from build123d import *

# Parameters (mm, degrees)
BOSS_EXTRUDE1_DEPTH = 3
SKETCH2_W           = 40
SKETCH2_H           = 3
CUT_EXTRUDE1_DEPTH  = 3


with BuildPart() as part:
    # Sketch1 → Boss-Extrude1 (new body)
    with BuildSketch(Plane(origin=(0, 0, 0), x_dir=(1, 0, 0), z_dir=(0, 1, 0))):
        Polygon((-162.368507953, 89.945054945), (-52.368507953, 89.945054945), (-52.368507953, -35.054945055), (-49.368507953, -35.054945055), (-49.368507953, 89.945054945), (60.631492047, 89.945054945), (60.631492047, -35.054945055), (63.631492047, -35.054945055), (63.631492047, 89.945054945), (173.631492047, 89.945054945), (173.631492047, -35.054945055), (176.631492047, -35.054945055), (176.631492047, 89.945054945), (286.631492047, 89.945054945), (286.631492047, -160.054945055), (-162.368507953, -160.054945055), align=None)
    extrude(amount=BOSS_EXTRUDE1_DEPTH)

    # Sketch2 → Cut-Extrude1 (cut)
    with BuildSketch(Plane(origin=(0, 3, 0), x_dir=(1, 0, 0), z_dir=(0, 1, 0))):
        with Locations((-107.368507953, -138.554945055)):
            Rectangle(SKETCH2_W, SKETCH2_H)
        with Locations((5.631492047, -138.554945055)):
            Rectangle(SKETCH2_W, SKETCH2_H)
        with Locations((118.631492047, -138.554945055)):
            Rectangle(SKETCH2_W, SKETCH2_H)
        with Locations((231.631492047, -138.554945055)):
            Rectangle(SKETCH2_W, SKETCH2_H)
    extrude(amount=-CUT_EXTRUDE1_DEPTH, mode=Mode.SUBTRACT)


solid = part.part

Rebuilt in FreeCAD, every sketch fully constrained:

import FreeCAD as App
import Part
import Sketcher

V = App.Vector

doc = App.newDocument("Part")
params = doc.addObject("Spreadsheet::Sheet", "Params")
for row, (alias, value) in enumerate([
    ("sketch1_width", "110 mm"),
    ("sketch1_width2", "449 mm"),
    ("sketch1_height", "250 mm"),
    ("sketch1_height2", "125 mm"),
    ("pad1_length", "3 mm"),
    ("sketch2_width", "40 mm"),
    ("sketch2_height", "3 mm"),
    ("pocket1_length", "3 mm"),
], start=1):
    params.set(f"A{row}", alias)
    params.set(f"B{row}", "=" + value)
    params.setAlias(f"B{row}", alias)

body = doc.addObject("PartDesign::Body", "Body")

# Sketch on XZ plane
sketch1 = body.newObject("Sketcher::SketchObject", "Sketch")
sketch1.AttachmentSupport = (doc.getObject("XZ_Plane"), [""])
sketch1.MapMode = "FlatFace"
sketch1.addGeometry([
    Part.LineSegment(V(-52.4, -89.9, 0), V(-162.4, -89.9, 0)),  # 0
    Part.LineSegment(V(-162.4, -89.9, 0), V(-162.4, 160.1, 0)),  # 1
    Part.LineSegment(V(-162.4, 160.1, 0), V(286.6, 160.1, 0)),  # 2
    Part.LineSegment(V(286.6, 160.1, 0), V(286.6, -89.9, 0)),  # 3
    Part.LineSegment(V(286.6, -89.9, 0), V(176.6, -89.9, 0)),  # 4
    Part.LineSegment(V(176.6, -89.9, 0), V(176.6, 35.1, 0)),  # 5
    Part.LineSegment(V(176.6, 35.1, 0), V(173.6, 35.1, 0)),  # 6
    Part.LineSegment(V(173.6, 35.1, 0), V(173.6, -89.9, 0)),  # 7
    Part.LineSegment(V(173.6, -89.9, 0), V(63.6, -89.9, 0)),  # 8
    Part.LineSegment(V(63.6, -89.9, 0), V(63.6, 35.1, 0)),  # 9
    Part.LineSegment(V(63.6, 35.1, 0), V(60.6, 35.1, 0)),  # 10
    Part.LineSegment(V(60.6, 35.1, 0), V(60.6, -89.9, 0)),  # 11
    Part.LineSegment(V(60.6, -89.9, 0), V(-49.4, -89.9, 0)),  # 12
    Part.LineSegment(V(-49.4, -89.9, 0), V(-49.4, 35.1, 0)),  # 13
    Part.LineSegment(V(-49.4, 35.1, 0), V(-52.4, 35.1, 0)),  # 14
    Part.LineSegment(V(-52.4, 35.1, 0), V(-52.4, -89.9, 0)),  # 15
], False)
sketch1.addConstraint([
    Sketcher.Constraint("Coincident", 0, 2, 1, 1),
    Sketcher.Constraint("Coincident", 1, 2, 2, 1),
    Sketcher.Constraint("Coincident", 2, 2, 3, 1),
    Sketcher.Constraint("Coincident", 3, 2, 4, 1),
    Sketcher.Constraint("Coincident", 4, 2, 5, 1),
    Sketcher.Constraint("Coincident", 5, 2, 6, 1),
    Sketcher.Constraint("Coincident", 6, 2, 7, 1),
    Sketcher.Constraint("Coincident", 7, 2, 8, 1),
    Sketcher.Constraint("Coincident", 8, 2, 9, 1),
    Sketcher.Constraint("Coincident", 9, 2, 10, 1),
    Sketcher.Constraint("Coincident", 10, 2, 11, 1),
    Sketcher.Constraint("Coincident", 11, 2, 12, 1),
    Sketcher.Constraint("Coincident", 12, 2, 13, 1),
    Sketcher.Constraint("Coincident", 13, 2, 14, 1),
    Sketcher.Constraint("Coincident", 14, 2, 15, 1),
    Sketcher.Constraint("Coincident", 15, 2, 0, 1),
    Sketcher.Constraint("Horizontal", 0),
    Sketcher.Constraint("Vertical", 1),
    Sketcher.Constraint("Horizontal", 2),
    Sketcher.Constraint("Vertical", 3),
    Sketcher.Constraint("Horizontal", 4),
    Sketcher.Constraint("Vertical", 5),
    Sketcher.Constraint("Horizontal", 6),
    Sketcher.Constraint("Vertical", 7),
    Sketcher.Constraint("Horizontal", 8),
    Sketcher.Constraint("Vertical", 9),
    Sketcher.Constraint("Horizontal", 10),
    Sketcher.Constraint("Vertical", 11),
    Sketcher.Constraint("Horizontal", 12),
    Sketcher.Constraint("Vertical", 13),
    Sketcher.Constraint("Horizontal", 14),
    Sketcher.Constraint("Vertical", 15),
    Sketcher.Constraint("Horizontal", 0, 2, 3, 2),
    Sketcher.Constraint("Horizontal", 4, 2, 7, 2),
    Sketcher.Constraint("Horizontal", 6, 2, 9, 2),
    Sketcher.Constraint("Horizontal", 8, 2, 11, 2),
    Sketcher.Constraint("Horizontal", 10, 2, 13, 2),
    Sketcher.Constraint("Equal", 0, 4),
    Sketcher.Constraint("Equal", 4, 8),
    Sketcher.Constraint("Equal", 6, 10),
    Sketcher.Constraint("Equal", 8, 12),
    Sketcher.Constraint("Equal", 10, 14),
    Sketcher.Constraint("DistanceX", 0, 2, 0, 1, 110.0),
    Sketcher.Constraint("DistanceX", 2, 1, 2, 2, 449.0),
    Sketcher.Constraint("DistanceY", 1, 1, 1, 2, 250.0),
    Sketcher.Constraint("DistanceY", 5, 1, 5, 2, 125.0),
    Sketcher.Constraint("DistanceX", 0, 2, -1, 1, 162.368508),
    Sketcher.Constraint("DistanceY", 0, 2, -1, 1, 89.945055),
])
sketch1.setExpression("Constraints[42]", "Params.sketch1_width")
sketch1.setExpression("Constraints[43]", "Params.sketch1_width2")
sketch1.setExpression("Constraints[44]", "Params.sketch1_height")
sketch1.setExpression("Constraints[45]", "Params.sketch1_height2")
pad1 = body.newObject("PartDesign::Pad", "Pad")
pad1.Profile = sketch1
pad1.setExpression("Length", "Params.pad1_length")
pad1.Reversed = True

# Sketch on XZ plane
sketch2 = body.newObject("Sketcher::SketchObject", "Sketch001")
sketch2.AttachmentSupport = (doc.getObject("XZ_Plane"), [""])
sketch2.MapMode = "FlatFace"
sketch2.AttachmentOffset = App.Placement(V(0, 0, -3), App.Rotation())
sketch2.addGeometry([
    Part.LineSegment(V(-127.4, 137.1, 0), V(-127.4, 140.1, 0)),  # 0
    Part.LineSegment(V(-127.4, 140.1, 0), V(-87.4, 140.1, 0)),  # 1
    Part.LineSegment(V(-87.4, 140.1, 0), V(-87.4, 137.1, 0)),  # 2
    Part.LineSegment(V(-87.4, 137.1, 0), V(-127.4, 137.1, 0)),  # 3
    Part.LineSegment(V(-14.4, 137.1, 0), V(-14.4, 140.1, 0)),  # 4
    Part.LineSegment(V(-14.4, 140.1, 0), V(25.6, 140.1, 0)),  # 5
    Part.LineSegment(V(25.6, 140.1, 0), V(25.6, 137.1, 0)),  # 6
    Part.LineSegment(V(25.6, 137.1, 0), V(-14.4, 137.1, 0)),  # 7
    Part.LineSegment(V(98.6, 137.1, 0), V(98.6, 140.1, 0)),  # 8
    Part.LineSegment(V(98.6, 140.1, 0), V(138.6, 140.1, 0)),  # 9
    Part.LineSegment(V(138.6, 140.1, 0), V(138.6, 137.1, 0)),  # 10
    Part.LineSegment(V(138.6, 137.1, 0), V(98.6, 137.1, 0)),  # 11
    Part.LineSegment(V(211.6, 137.1, 0), V(211.6, 140.1, 0)),  # 12
    Part.LineSegment(V(211.6, 140.1, 0), V(251.6, 140.1, 0)),  # 13
    Part.LineSegment(V(251.6, 140.1, 0), V(251.6, 137.1, 0)),  # 14
    Part.LineSegment(V(251.6, 137.1, 0), V(211.6, 137.1, 0)),  # 15
], False)
sketch2.addConstraint([
    Sketcher.Constraint("Coincident", 0, 2, 1, 1),
    Sketcher.Constraint("Coincident", 1, 2, 2, 1),
    Sketcher.Constraint("Coincident", 2, 2, 3, 1),
    Sketcher.Constraint("Coincident", 3, 2, 0, 1),
    Sketcher.Constraint("Coincident", 4, 2, 5, 1),
    Sketcher.Constraint("Coincident", 5, 2, 6, 1),
    Sketcher.Constraint("Coincident", 6, 2, 7, 1),
    Sketcher.Constraint("Coincident", 7, 2, 4, 1),
    Sketcher.Constraint("Coincident", 8, 2, 9, 1),
    Sketcher.Constraint("Coincident", 9, 2, 10, 1),
    Sketcher.Constraint("Coincident", 10, 2, 11, 1),
    Sketcher.Constraint("Coincident", 11, 2, 8, 1),
    Sketcher.Constraint("Coincident", 12, 2, 13, 1),
    Sketcher.Constraint("Coincident", 13, 2, 14, 1),
    Sketcher.Constraint("Coincident", 14, 2, 15, 1),
    Sketcher.Constraint("Coincident", 15, 2, 12, 1),
    Sketcher.Constraint("Vertical", 0),
    Sketcher.Constraint("Horizontal", 1),
    Sketcher.Constraint("Vertical", 2),
    Sketcher.Constraint("Horizontal", 3),
    Sketcher.Constraint("Vertical", 4),
    Sketcher.Constraint("Horizontal", 5),
    Sketcher.Constraint("Vertical", 6),
    Sketcher.Constraint("Horizontal", 7),
    Sketcher.Constraint("Vertical", 8),
    Sketcher.Constraint("Horizontal", 9),
    Sketcher.Constraint("Vertical", 10),
    Sketcher.Constraint("Horizontal", 11),
    Sketcher.Constraint("Vertical", 12),
    Sketcher.Constraint("Horizontal", 13),
    Sketcher.Constraint("Vertical", 14),
    Sketcher.Constraint("Horizontal", 15),
    Sketcher.Constraint("Horizontal", 1, 2, 4, 2),
    Sketcher.Constraint("Horizontal", 3, 2, 6, 2),
    Sketcher.Constraint("Horizontal", 5, 2, 8, 2),
    Sketcher.Constraint("Horizontal", 7, 2, 10, 2),
    Sketcher.Constraint("Horizontal", 9, 2, 12, 2),
    Sketcher.Constraint("Horizontal", 11, 2, 14, 2),
    Sketcher.Constraint("Equal", 3, 5),
    Sketcher.Constraint("Equal", 7, 9),
    Sketcher.Constraint("Equal", 11, 13),
    Sketcher.Constraint("DistanceX", 1, 1, 1, 2, 40.0),
    Sketcher.Constraint("DistanceY", 0, 1, 0, 2, 3.0),
    Sketcher.Constraint("DistanceX", 1, 2, 4, 2, 73.0),
    Sketcher.Constraint("DistanceX", 5, 2, 8, 2, 73.0),
    Sketcher.Constraint("DistanceX", 9, 2, 12, 2, 73.0),
    Sketcher.Constraint("DistanceX", 0, 2, -1, 1, 127.368508),
    Sketcher.Constraint("DistanceY", -1, 1, 0, 2, 140.054945),
])
sketch2.setExpression("Constraints[41]", "Params.sketch2_width")
sketch2.setExpression("Constraints[42]", "Params.sketch2_height")
pocket1 = body.newObject("PartDesign::Pocket", "Pocket")
pocket1.Profile = sketch2
pocket1.setExpression("Length", "Params.pocket1_length")
pocket1.Reversed = True

doc.recompute()
